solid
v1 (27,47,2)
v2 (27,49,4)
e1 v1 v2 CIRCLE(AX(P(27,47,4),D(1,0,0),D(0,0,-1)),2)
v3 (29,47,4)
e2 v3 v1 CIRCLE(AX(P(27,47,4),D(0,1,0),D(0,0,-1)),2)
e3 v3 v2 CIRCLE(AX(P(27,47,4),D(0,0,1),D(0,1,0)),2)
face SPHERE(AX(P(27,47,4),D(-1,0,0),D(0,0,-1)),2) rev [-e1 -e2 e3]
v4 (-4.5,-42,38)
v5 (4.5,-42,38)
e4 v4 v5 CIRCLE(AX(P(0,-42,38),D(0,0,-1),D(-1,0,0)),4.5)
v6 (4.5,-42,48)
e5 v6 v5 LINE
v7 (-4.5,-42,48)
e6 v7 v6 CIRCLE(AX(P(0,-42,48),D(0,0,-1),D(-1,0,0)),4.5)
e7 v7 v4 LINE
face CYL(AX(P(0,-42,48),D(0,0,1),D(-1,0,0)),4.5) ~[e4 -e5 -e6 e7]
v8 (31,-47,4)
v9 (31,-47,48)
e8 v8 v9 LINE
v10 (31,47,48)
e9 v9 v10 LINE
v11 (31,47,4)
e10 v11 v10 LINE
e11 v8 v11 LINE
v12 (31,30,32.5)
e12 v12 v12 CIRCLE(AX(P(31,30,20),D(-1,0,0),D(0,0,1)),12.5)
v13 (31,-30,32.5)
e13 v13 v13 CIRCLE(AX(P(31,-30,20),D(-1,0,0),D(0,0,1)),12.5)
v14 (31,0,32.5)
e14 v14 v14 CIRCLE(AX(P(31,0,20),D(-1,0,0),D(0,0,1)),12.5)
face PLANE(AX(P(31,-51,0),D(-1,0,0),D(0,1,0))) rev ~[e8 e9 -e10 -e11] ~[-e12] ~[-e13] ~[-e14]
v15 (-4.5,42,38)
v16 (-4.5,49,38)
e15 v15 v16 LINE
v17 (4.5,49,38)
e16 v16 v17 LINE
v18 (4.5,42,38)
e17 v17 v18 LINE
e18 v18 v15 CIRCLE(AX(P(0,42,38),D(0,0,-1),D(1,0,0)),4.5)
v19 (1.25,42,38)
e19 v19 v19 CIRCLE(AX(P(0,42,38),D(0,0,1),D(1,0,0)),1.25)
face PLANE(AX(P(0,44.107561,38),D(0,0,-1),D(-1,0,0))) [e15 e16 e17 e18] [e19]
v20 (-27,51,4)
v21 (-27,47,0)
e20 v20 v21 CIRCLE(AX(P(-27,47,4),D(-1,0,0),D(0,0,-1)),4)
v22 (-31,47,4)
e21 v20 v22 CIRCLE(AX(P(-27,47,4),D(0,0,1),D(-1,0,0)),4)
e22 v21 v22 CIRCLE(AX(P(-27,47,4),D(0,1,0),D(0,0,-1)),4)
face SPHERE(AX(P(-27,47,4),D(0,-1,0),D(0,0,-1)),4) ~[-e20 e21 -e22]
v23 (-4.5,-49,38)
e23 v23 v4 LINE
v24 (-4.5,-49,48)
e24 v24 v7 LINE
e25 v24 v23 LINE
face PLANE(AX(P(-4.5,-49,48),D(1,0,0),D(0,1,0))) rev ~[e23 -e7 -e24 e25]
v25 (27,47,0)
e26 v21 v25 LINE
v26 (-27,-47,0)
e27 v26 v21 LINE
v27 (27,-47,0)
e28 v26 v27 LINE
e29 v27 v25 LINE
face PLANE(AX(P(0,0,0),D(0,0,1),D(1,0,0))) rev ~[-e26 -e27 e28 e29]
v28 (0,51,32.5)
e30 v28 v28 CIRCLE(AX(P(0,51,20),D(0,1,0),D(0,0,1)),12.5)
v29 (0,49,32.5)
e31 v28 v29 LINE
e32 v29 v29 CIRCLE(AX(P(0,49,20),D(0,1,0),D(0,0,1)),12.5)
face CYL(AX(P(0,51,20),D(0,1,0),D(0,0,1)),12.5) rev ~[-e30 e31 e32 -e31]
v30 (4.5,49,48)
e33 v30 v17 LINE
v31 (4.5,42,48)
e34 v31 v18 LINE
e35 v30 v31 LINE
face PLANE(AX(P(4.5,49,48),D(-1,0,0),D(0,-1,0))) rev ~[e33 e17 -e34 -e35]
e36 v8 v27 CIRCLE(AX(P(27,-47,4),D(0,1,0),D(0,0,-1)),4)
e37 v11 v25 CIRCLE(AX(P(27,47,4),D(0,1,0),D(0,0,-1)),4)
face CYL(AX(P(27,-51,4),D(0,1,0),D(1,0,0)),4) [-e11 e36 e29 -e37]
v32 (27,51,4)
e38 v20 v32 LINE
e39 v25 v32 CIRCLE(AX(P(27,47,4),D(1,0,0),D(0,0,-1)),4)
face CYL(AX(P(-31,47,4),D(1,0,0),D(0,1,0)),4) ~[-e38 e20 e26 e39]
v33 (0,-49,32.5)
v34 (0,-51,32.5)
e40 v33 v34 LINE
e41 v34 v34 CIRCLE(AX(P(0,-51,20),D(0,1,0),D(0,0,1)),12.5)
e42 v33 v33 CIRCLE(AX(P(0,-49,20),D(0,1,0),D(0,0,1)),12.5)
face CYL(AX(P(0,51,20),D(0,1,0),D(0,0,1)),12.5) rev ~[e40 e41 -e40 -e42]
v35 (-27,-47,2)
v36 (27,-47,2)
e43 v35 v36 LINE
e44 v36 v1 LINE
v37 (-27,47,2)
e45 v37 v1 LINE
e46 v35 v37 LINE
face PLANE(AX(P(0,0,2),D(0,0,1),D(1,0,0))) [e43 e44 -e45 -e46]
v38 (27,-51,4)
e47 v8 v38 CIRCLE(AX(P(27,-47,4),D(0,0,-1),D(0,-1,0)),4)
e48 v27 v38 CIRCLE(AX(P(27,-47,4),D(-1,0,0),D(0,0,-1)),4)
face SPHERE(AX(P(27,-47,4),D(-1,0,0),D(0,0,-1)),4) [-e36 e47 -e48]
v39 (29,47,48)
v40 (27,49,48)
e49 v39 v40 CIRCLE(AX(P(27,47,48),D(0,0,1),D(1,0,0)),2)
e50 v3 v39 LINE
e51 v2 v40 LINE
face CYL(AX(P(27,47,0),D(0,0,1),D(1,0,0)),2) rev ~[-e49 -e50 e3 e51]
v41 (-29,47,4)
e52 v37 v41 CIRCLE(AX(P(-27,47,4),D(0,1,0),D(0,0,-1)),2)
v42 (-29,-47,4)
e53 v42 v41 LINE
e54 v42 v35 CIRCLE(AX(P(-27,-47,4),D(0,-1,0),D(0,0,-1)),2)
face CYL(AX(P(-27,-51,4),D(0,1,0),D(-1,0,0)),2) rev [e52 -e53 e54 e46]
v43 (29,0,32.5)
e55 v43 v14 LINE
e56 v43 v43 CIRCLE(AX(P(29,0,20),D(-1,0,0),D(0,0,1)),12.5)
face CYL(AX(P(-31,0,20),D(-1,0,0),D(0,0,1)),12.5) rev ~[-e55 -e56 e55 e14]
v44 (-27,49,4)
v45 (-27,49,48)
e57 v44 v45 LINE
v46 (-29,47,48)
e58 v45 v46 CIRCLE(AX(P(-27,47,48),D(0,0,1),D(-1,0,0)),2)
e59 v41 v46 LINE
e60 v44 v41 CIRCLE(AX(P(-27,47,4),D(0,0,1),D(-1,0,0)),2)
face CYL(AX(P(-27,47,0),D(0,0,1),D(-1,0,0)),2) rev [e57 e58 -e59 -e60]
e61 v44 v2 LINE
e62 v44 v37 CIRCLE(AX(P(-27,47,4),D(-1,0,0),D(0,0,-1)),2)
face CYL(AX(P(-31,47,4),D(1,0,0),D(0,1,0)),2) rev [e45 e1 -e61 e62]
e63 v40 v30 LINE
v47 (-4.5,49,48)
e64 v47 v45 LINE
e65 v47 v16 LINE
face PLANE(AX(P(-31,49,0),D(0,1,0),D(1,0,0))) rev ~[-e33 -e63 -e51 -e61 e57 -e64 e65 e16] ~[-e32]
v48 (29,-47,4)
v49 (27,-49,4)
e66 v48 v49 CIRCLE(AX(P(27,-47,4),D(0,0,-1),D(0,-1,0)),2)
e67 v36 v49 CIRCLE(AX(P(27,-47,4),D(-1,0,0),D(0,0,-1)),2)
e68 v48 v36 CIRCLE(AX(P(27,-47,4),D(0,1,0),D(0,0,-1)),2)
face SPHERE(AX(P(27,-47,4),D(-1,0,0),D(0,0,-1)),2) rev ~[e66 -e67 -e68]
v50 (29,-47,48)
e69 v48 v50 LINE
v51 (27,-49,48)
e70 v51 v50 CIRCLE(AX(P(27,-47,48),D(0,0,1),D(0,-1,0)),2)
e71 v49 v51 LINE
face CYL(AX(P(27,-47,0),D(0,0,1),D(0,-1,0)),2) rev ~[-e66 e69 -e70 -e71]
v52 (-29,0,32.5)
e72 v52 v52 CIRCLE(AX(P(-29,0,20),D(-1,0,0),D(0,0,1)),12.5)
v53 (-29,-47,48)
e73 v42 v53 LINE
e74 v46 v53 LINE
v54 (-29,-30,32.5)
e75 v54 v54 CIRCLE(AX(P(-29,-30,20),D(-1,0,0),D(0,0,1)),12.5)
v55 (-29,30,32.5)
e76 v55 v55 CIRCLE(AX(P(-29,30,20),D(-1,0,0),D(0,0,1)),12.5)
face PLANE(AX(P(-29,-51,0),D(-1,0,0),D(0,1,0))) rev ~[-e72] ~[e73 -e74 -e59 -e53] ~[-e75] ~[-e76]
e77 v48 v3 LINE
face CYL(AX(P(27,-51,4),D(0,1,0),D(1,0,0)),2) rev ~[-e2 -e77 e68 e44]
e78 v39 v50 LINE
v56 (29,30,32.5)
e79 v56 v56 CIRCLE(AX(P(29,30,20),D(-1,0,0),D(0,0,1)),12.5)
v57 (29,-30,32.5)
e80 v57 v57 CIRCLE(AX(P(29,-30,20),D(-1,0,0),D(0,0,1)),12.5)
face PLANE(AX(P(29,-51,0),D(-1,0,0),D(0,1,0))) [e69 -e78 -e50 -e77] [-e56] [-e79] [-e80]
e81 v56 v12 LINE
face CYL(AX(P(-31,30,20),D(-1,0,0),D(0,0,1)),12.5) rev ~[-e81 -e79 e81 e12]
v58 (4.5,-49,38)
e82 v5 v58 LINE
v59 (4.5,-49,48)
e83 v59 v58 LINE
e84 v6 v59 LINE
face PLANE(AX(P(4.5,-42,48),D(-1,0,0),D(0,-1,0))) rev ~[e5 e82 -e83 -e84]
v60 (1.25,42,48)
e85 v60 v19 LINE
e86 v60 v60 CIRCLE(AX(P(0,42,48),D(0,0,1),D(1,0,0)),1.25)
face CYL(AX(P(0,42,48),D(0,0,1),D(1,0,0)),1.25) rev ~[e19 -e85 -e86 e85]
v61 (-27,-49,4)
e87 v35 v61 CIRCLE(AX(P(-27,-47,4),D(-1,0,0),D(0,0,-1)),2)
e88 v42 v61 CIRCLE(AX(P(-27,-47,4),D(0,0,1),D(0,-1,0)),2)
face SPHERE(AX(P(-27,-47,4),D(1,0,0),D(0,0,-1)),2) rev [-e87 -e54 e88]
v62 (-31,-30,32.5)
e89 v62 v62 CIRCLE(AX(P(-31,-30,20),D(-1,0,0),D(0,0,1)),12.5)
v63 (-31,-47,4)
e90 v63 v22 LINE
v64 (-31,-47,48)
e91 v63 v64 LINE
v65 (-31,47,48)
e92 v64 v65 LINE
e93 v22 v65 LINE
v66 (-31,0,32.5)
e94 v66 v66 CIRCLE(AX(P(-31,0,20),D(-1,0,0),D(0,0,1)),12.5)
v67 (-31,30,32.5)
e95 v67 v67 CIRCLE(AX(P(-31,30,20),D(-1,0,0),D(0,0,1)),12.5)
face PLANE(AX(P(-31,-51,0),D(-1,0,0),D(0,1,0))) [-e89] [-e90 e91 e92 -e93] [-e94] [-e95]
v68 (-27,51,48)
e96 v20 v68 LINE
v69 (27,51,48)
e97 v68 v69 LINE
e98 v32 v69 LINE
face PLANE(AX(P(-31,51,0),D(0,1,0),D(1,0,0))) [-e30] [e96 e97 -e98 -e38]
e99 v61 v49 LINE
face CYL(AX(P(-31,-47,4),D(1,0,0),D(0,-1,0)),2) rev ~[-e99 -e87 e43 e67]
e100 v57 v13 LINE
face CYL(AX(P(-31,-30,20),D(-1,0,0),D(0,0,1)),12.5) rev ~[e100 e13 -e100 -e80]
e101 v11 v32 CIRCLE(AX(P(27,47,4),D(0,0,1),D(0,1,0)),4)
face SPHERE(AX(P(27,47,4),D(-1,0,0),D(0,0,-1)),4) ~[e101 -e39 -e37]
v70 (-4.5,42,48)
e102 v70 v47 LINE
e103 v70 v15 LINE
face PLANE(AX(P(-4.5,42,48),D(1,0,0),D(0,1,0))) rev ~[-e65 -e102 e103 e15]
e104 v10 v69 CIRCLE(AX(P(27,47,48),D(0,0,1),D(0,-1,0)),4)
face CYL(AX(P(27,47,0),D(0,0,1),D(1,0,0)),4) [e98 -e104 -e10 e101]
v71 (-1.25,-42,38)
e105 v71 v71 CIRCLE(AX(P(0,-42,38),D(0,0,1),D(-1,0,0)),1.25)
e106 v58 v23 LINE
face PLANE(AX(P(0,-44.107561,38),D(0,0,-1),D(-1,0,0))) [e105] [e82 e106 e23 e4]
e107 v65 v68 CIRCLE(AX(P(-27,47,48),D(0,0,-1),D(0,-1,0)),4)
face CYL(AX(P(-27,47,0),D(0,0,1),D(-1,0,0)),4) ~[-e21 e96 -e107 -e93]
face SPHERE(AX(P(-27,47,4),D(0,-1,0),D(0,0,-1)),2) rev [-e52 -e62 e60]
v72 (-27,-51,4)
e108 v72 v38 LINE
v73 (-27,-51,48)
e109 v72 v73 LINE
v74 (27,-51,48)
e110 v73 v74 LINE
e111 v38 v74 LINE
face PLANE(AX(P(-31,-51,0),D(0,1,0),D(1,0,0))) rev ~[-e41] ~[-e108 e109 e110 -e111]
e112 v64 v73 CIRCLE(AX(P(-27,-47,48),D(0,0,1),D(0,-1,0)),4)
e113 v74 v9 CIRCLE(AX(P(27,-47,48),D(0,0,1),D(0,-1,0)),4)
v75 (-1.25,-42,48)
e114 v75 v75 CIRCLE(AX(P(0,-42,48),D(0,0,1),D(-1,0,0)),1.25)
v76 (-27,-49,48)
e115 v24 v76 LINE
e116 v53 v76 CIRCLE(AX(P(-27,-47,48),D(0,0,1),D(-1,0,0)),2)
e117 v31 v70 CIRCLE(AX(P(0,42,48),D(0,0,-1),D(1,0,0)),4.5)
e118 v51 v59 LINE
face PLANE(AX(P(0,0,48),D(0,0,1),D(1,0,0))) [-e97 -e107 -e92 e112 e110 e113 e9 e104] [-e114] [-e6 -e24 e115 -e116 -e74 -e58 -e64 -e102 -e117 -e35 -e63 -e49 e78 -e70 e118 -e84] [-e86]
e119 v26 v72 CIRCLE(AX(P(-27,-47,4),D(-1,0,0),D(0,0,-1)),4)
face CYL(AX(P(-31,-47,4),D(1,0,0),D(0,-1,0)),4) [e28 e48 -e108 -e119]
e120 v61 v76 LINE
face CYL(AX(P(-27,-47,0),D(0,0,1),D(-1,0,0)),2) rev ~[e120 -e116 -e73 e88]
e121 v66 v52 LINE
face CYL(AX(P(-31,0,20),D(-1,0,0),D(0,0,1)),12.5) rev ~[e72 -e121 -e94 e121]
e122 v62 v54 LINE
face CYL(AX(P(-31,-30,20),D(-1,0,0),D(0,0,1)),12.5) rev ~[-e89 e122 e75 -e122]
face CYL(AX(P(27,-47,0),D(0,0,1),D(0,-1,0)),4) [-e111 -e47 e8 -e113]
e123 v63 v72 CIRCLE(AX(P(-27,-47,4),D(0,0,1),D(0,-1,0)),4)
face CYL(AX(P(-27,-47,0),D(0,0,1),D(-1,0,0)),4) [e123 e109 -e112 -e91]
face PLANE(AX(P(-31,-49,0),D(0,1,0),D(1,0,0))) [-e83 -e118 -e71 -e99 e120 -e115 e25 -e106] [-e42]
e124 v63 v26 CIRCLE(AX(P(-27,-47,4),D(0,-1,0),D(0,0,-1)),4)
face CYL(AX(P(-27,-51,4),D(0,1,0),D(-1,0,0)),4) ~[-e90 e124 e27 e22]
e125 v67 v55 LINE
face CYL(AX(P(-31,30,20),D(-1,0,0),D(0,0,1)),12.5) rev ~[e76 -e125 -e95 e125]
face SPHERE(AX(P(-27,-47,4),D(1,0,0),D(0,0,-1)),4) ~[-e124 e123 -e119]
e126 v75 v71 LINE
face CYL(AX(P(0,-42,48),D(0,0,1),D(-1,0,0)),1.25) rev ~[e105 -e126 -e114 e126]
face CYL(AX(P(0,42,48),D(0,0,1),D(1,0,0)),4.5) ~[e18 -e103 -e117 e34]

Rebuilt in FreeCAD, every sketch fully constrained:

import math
import FreeCAD as App
import Part
import Sketcher

V = App.Vector


def edges_at(feature, points):
    """Names of the edges that pass closest to the given points."""
    edges = feature.Shape.Edges
    near = lambda p: min(range(len(edges)), key=lambda i: edges[i].distToShape(Part.Vertex(*p))[0])
    return sorted({f"Edge{near(p) + 1}" for p in points})


def faces_at(feature, points):
    """Names of the faces that lie closest to the given points."""
    faces = feature.Shape.Faces
    near = lambda p: min(range(len(faces)), key=lambda i: faces[i].distToShape(Part.Vertex(*p))[0])
    return sorted({f"Face{near(p) + 1}" for p in points})


def add_polygon(sketch, points):
    """Adds a closed chain of lines whose ends are joined by coincident constraints."""
    first, n = sketch.GeometryCount, len(points)
    for a, b in zip(points, points[1:] + points[:1]):
        sketch.addGeometry(Part.LineSegment(App.Vector(*a, 0), App.Vector(*b, 0)), False)
    for i in range(n):
        sketch.addConstraint(Sketcher.Constraint("Coincident", first + i, 2, first + (i + 1) % n, 1))

doc = App.newDocument("Part")
body = doc.addObject("PartDesign::Body", "Body")

# Sketch on XY plane
sketch1 = body.newObject("Sketcher::SketchObject", "Sketch")
sketch1.AttachmentSupport = (doc.getObject("XY_Plane"), [""])
sketch1.MapMode = "FlatFace"
add_polygon(sketch1, [(-31, 51), (-31, -51), (31, -51), (31, 51)])  # lines 0-3
sketch1.addConstraint(Sketcher.Constraint("Vertical", 0))
sketch1.addConstraint(Sketcher.Constraint("Horizontal", 1))
sketch1.addConstraint(Sketcher.Constraint("Vertical", 2))
sketch1.addConstraint(Sketcher.Constraint("Horizontal", 3))
sketch1.addConstraint(Sketcher.Constraint("Symmetric", 0, 2, 2, 2, -1, 1))
sketch1.addConstraint(Sketcher.Constraint("DistanceX", 1, 1, 1, 2, 62.0))
sketch1.addConstraint(Sketcher.Constraint("DistanceY", 0, 2, 0, 1, 102.0))
pad1 = body.newObject("PartDesign::Pad", "Pad")
pad1.Profile = sketch1
pad1.Length = 48
doc.recompute()

fillet = body.newObject("PartDesign::Fillet", "Fillet")
fillet.Base = (pad1, edges_at(pad1, [
    (0, -51, 0),
    (-31, 0, 0),
    (0, 51, 0),
    (31, 0, 0),
    (31, -51, 24),
    (-31, -51, 24),
    (-31, 51, 24),
    (31, 51, 24),
]))
fillet.Radius = 4
doc.recompute()

thickness = body.newObject("PartDesign::Thickness", "Thickness")
thickness.Base = (fillet, faces_at(fillet, [(0, 0, 48)]))
thickness.Value = 2
thickness.Reversed = True
thickness.Join = "Intersection"

# Sketch on YZ plane
sketch2 = body.newObject("Sketcher::SketchObject", "Sketch001")
sketch2.AttachmentSupport = (doc.getObject("YZ_Plane"), [""])
sketch2.MapMode = "FlatFace"
sketch2.AttachmentOffset = App.Placement(V(0, 0, -31), App.Rotation())
sketch2.addGeometry(Part.Circle(V(0, 20, 0), V(0, 0, 1), 12), False)
sketch2.addGeometry(Part.Circle(V(30, 20, 0), V(0, 0, 1), 12), False)
sketch2.addGeometry(Part.Circle(V(-30, 20, 0), V(0, 0, 1), 12), False)
sketch2.addConstraint(Sketcher.Constraint("Equal", 0, 1))
sketch2.addConstraint(Sketcher.Constraint("Equal", 1, 2))
sketch2.addConstraint(Sketcher.Constraint("Symmetric", 1, 3, 2, 3, -2))
sketch2.addConstraint(Sketcher.Constraint("PointOnObject", 0, 3, -2))
sketch2.addConstraint(Sketcher.Constraint("Horizontal", 0, 3, 1, 3))
sketch2.addConstraint(Sketcher.Constraint("Diameter", 0, 25.0))
sketch2.addConstraint(Sketcher.Constraint("DistanceY", -1, 1, 0, 3, 20.0))
sketch2.addConstraint(Sketcher.Constraint("DistanceX", -1, 1, 1, 3, 30.0))
pocket1 = body.newObject("PartDesign::Pocket", "Pocket")
pocket1.Profile = sketch2
pocket1.Type = "ThroughAll"
pocket1.Reversed = True

# Sketch on XZ plane
sketch3 = body.newObject("Sketcher::SketchObject", "Sketch002")
sketch3.AttachmentSupport = (doc.getObject("XZ_Plane"), [""])
sketch3.MapMode = "FlatFace"
sketch3.AttachmentOffset = App.Placement(V(0, 0, -51), App.Rotation())
sketch3.addGeometry(Part.Circle(V(0, 20, 0), V(0, 0, 1), 12), False)
sketch3.addConstraint(Sketcher.Constraint("PointOnObject", 0, 3, -2))
sketch3.addConstraint(Sketcher.Constraint("Diameter", 0, 25.0))
sketch3.addConstraint(Sketcher.Constraint("DistanceY", -1, 1, 0, 3, 20.0))
pocket2 = body.newObject("PartDesign::Pocket", "Pocket001")
pocket2.Profile = sketch3
pocket2.Type = "ThroughAll"
pocket2.Reversed = True

# Sketch on XY plane
sketch4 = body.newObject("Sketcher::SketchObject", "Sketch003")
sketch4.AttachmentSupport = (doc.getObject("XY_Plane"), [""])
sketch4.MapMode = "FlatFace"
sketch4.AttachmentOffset = App.Placement(V(0, 0, 48), App.Rotation())
sketch4.addGeometry(Part.LineSegment(V(-4.5, 49, 0), V(-4.5, 42, 0)), False)
sketch4.addGeometry(Part.ArcOfCircle(Part.Circle(V(0, 42, 0), V(0, 0, 1), 4.5), math.radians(180), math.radians(360)), False)
sketch4.addGeometry(Part.LineSegment(V(4.5, 42, 0), V(4.5, 49, 0)), False)
sketch4.addGeometry(Part.LineSegment(V(4.5, 49, 0), V(-4.5, 49, 0)), False)
sketch4.addGeometry(Part.Circle(V(0, 42, 0), V(0, 0, 1), 1.2), False)
sketch4.addGeometry(Part.LineSegment(V(-4.5, -49, 0), V(4.5, -49, 0)), False)
sketch4.addGeometry(Part.LineSegment(V(4.5, -49, 0), V(4.5, -42, 0)), False)
sketch4.addGeometry(Part.ArcOfCircle(Part.Circle(V(0, -42, 0), V(0, 0, 1), 4.5), math.radians(0), math.radians(180)), False)
sketch4.addGeometry(Part.LineSegment(V(-4.5, -42, 0), V(-4.5, -49, 0)), False)
sketch4.addGeometry(Part.Circle(V(0, -42, 0), V(0, 0, 1), 1.2), False)
sketch4.addConstraint(Sketcher.Constraint("Tangent", 0, 2, 1, 1))
sketch4.addConstraint(Sketcher.Constraint("Tangent", 1, 2, 2, 1))
sketch4.addConstraint(Sketcher.Constraint("Coincident", 2, 2, 3, 1))
sketch4.addConstraint(Sketcher.Constraint("Coincident", 3, 2, 0, 1))
sketch4.addConstraint(Sketcher.Constraint("Coincident", 5, 2, 6, 1))
sketch4.addConstraint(Sketcher.Constraint("Tangent", 6, 2, 7, 1))
sketch4.addConstraint(Sketcher.Constraint("Tangent", 7, 2, 8, 1))
sketch4.addConstraint(Sketcher.Constraint("Coincident", 8, 2, 5, 1))
sketch4.addConstraint(Sketcher.Constraint("Vertical", 0))
sketch4.addConstraint(Sketcher.Constraint("Vertical", 2))
sketch4.addConstraint(Sketcher.Constraint("Horizontal", 3))
sketch4.addConstraint(Sketcher.Constraint("Horizontal", 5))
sketch4.addConstraint(Sketcher.Constraint("Vertical", 6))
sketch4.addConstraint(Sketcher.Constraint("Vertical", 8))
sketch4.addConstraint(Sketcher.Constraint("Coincident", 4, 3, 1, 3))
sketch4.addConstraint(Sketcher.Constraint("Coincident", 9, 3, 7, 3))
sketch4.addConstraint(Sketcher.Constraint("Equal", 1, 7))
sketch4.addConstraint(Sketcher.Constraint("Equal", 4, 9))
sketch4.addConstraint(Sketcher.Constraint("Symmetric", 1, 3, 7, 3, -1, 1))
sketch4.addConstraint(Sketcher.Constraint("Symmetric", 2, 2, 5, 2, -1))
sketch4.addConstraint(Sketcher.Constraint("Diameter", 4, 2.5))
sketch4.addConstraint(Sketcher.Constraint("Radius", 1, 4.5))
sketch4.addConstraint(Sketcher.Constraint("DistanceY", 0, 2, 0, 1, 7.0))
sketch4.addConstraint(Sketcher.Constraint("DistanceY", -1, 1, 1, 3, 42.0))
pad2 = body.newObject("PartDesign::Pad", "Pad001")
pad2.Profile = sketch4
pad2.Length = 10
pad2.Reversed = True

doc.recompute()
